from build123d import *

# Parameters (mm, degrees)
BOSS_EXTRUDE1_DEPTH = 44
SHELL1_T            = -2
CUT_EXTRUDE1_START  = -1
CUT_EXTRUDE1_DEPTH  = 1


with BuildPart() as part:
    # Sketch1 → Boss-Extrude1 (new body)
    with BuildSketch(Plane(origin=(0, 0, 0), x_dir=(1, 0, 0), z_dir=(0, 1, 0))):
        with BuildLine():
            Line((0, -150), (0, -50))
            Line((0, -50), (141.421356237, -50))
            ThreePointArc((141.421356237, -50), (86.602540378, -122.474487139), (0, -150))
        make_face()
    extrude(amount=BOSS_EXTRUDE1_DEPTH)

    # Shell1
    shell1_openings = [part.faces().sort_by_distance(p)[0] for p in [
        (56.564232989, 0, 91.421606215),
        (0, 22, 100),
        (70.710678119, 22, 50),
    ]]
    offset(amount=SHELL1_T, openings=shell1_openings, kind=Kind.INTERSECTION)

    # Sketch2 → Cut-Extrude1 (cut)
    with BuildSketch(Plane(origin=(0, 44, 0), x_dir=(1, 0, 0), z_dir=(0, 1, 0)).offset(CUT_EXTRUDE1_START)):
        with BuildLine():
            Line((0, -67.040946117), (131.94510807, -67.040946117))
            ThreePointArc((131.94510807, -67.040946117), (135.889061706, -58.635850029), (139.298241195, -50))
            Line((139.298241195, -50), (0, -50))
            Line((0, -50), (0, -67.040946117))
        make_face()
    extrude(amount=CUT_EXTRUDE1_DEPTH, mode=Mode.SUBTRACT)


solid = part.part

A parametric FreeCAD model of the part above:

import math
import FreeCAD as App
import Part
import Sketcher
from FreeCAD import Vector


def faces_at(feature, points):
    """Names of the faces that lie closest to the given points."""
    faces = feature.Shape.Faces
    near = lambda p: min(range(len(faces)), key=lambda i: faces[i].distToShape(Part.Vertex(*p))[0])
    return sorted({f"Face{near(p) + 1}" for p in points})

doc = App.newDocument("Part")
body = doc.addObject("PartDesign::Body", "Body")

# Sketch on XZ plane
sketch1 = doc.addObject("Sketcher::SketchObject", "Sketch")
body.addObject(sketch1)
sketch1.AttachmentSupport = (doc.XZ_Plane, [""])
sketch1.MapMode = "FlatFace"
sketch1.addGeometry(Part.LineSegment(Vector(0, 50, 0), Vector(0, 150, 0)), False)
sketch1.addGeometry(Part.ArcOfCircle(Part.Circle(Vector(0, 0, 0), Vector(0, 0, 1), 150), math.radians(19), math.radians(90)), False)
sketch1.addGeometry(Part.LineSegment(Vector(141, 50, 0), Vector(0, 50, 0)), False)
sketch1.addConstraint(Sketcher.Constraint("Coincident", 0, 2, 1, 2))
sketch1.addConstraint(Sketcher.Constraint("Coincident", 1, 1, 2, 1))
sketch1.addConstraint(Sketcher.Constraint("Coincident", 2, 2, 0, 1))
sketch1.addConstraint(Sketcher.Constraint("Vertical", 0))
sketch1.addConstraint(Sketcher.Constraint("Horizontal", 2))
sketch1.addConstraint(Sketcher.Constraint("Coincident", 1, 3, -1, 1))
sketch1.addConstraint(Sketcher.Constraint("PointOnObject", 0, 2, -2))
sketch1.addConstraint(Sketcher.Constraint("Radius", 1, 150.0))
sketch1.addConstraint(Sketcher.Constraint("DistanceY", 0, 1, 0, 2, 100.0))
pad1 = doc.addObject("PartDesign::Pad", "Pad")
body.addObject(pad1)
pad1.Profile = sketch1
pad1.Length = 44
pad1.Reversed = True
doc.recompute()

thickness = doc.addObject("PartDesign::Thickness", "Thickness")
body.addObject(thickness)
thickness.Base = (pad1, faces_at(pad1, [(70.711, 0, 100), (0, 22, 100), (70.711, 22, 50)]))
thickness.Value = 2
thickness.Reversed = True
thickness.Join = "Intersection"

# Sketch on XZ plane
sketch2 = doc.addObject("Sketcher::SketchObject", "Sketch001")
body.addObject(sketch2)
sketch2.AttachmentSupport = (doc.XZ_Plane, [""])
sketch2.MapMode = "FlatFace"
sketch2.AttachmentOffset = App.Placement(Vector(0, 0, -43), App.Rotation())
sketch2.addGeometry(Part.LineSegment(Vector(0, 67, 0), Vector(132, 67, 0)), False)
sketch2.addGeometry(Part.ArcOfCircle(Part.Circle(Vector(0, 0, 0), Vector(0, 0, 1), 148), math.radians(19.75), math.radians(26.93)), False)
sketch2.addGeometry(Part.LineSegment(Vector(139, 50, 0), Vector(0, 50, 0)), False)
sketch2.addGeometry(Part.LineSegment(Vector(0, 50, 0), Vector(0, 67, 0)), False)
sketch2.addConstraint(Sketcher.Constraint("Coincident", 0, 2, 1, 2))
sketch2.addConstraint(Sketcher.Constraint("Coincident", 1, 1, 2, 1))
sketch2.addConstraint(Sketcher.Constraint("Coincident", 2, 2, 3, 1))
sketch2.addConstraint(Sketcher.Constraint("Coincident", 3, 2, 0, 1))
sketch2.addConstraint(Sketcher.Constraint("Horizontal", 0))
sketch2.addConstraint(Sketcher.Constraint("Horizontal", 2))
sketch2.addConstraint(Sketcher.Constraint("Vertical", 3))
sketch2.addConstraint(Sketcher.Constraint("Coincident", 1, 3, -1, 1))
sketch2.addConstraint(Sketcher.Constraint("PointOnObject", 2, 2, -2))
sketch2.addConstraint(Sketcher.Constraint("Radius", 1, 148.0))
sketch2.addConstraint(Sketcher.Constraint("DistanceY", -1, 1, 1, 1, 50.0))
sketch2.addConstraint(Sketcher.Constraint("DistanceX", 0, 1, 0, 2, 131.945108))
pocket1 = doc.addObject("PartDesign::Pocket", "Pocket")
body.addObject(pocket1)
pocket1.Profile = sketch2
pocket1.Length = 1

doc.recompute()
